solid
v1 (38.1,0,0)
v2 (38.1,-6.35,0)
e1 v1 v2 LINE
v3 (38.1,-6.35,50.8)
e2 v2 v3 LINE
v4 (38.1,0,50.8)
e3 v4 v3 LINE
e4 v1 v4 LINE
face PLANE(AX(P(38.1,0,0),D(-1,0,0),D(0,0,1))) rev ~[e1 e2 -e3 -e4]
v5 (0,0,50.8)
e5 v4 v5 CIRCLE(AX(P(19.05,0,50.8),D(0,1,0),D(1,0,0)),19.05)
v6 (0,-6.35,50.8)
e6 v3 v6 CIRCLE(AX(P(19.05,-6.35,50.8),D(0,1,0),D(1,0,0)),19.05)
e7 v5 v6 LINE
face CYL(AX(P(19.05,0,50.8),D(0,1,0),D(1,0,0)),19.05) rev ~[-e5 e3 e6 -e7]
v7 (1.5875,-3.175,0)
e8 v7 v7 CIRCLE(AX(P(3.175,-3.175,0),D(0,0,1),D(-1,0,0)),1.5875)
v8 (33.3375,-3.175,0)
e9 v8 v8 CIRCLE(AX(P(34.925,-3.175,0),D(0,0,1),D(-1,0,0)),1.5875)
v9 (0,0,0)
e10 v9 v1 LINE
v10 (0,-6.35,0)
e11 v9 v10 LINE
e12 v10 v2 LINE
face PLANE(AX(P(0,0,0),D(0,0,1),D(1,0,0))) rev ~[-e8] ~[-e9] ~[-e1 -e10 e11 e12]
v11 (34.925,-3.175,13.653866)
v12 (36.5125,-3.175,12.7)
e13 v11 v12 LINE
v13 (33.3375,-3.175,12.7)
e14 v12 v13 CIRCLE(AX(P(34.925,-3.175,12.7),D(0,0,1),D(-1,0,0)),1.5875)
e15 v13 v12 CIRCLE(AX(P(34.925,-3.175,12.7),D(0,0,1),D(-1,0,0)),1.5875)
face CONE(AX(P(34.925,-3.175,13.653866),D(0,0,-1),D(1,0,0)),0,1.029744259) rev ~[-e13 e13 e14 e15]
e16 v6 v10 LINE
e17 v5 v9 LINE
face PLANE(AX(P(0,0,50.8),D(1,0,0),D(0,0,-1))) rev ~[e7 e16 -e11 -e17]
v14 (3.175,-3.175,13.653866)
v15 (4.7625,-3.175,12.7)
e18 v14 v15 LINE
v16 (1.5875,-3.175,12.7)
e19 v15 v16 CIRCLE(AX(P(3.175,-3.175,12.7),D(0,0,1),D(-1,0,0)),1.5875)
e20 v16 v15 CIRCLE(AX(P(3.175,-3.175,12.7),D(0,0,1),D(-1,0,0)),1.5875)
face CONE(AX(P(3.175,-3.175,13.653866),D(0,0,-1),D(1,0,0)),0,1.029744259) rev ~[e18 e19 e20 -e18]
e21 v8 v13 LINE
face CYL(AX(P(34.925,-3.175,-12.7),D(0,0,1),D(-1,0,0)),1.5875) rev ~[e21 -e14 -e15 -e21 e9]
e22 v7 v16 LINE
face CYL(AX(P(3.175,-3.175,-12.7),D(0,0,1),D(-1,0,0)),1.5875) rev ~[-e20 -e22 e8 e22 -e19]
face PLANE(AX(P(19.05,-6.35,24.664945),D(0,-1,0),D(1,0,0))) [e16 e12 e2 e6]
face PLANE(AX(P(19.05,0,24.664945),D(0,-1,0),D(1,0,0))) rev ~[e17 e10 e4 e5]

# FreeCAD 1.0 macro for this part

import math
import FreeCAD as App
import Part
import Sketcher

V = App.Vector
Q = App.Units.Quantity

doc = App.newDocument("Part")
params = doc.addObject("Spreadsheet::Sheet", "Params")
for row, (alias, value) in enumerate([
    ("sketch1_height", "2 in"),
    ("sketch1_radius", "0.75 in"),
    ("pad1_length", "0.25 in"),
    ("sketch2_diameter", "0.125 in"),
    ("hole_diameter", "0.125 in"),
    ("hole_depth", "0.5 in"),
], start=1):
    params.set(f"A{row}", alias)
    params.set(f"B{row}", "=" + value)
    params.setAlias(f"B{row}", alias)

body = doc.addObject("PartDesign::Body", "Body")

# Sketch on XZ plane
sketch1 = body.newObject("Sketcher::SketchObject", "Sketch")
sketch1.AttachmentSupport = (doc.getObject("XZ_Plane"), [""])
sketch1.MapMode = "FlatFace"
sketch1.addGeometry([
    Part.LineSegment(V(0, 51, 0), V(0, 0, 0)),
    Part.LineSegment(V(0, 0, 0), V(38, 0, 0)),
    Part.LineSegment(V(38, 0, 0), V(38, 51, 0)),
    Part.ArcOfCircle(Part.Circle(V(19, 51, 0), V(0, 0, 1), 19), math.radians(180), math.radians(360)),
], False)
sketch1.addConstraint([
    Sketcher.Constraint("Coincident", 0, 2, 1, 1),
    Sketcher.Constraint("Coincident", 1, 2, 2, 1),
    Sketcher.Constraint("Tangent", 2, 2, 3, 2),
    Sketcher.Constraint("Tangent", 3, 1, 0, 1),
    Sketcher.Constraint("Vertical", 0),
    Sketcher.Constraint("Horizontal", 1),
    Sketcher.Constraint("Vertical", 2),
    Sketcher.Constraint("Coincident", 0, 2, -1, 1),
    Sketcher.Constraint("DistanceY", 0, 2, 0, 1, Q("2 in")),
    Sketcher.Constraint("Radius", 3, Q("0.75 in")),
])
sketch1.setExpression("Constraints[8]", "Params.sketch1_height")
sketch1.setExpression("Constraints[9]", "Params.sketch1_radius")
pad1 = body.newObject("PartDesign::Pad", "Pad")
pad1.Profile = sketch1
pad1.setExpression("Length", "Params.pad1_length")

# Sketch on XY plane
sketch2 = body.newObject("Sketcher::SketchObject", "Sketch001")
sketch2.AttachmentSupport = (doc.getObject("XY_Plane"), [""])
sketch2.MapMode = "FlatFace"
sketch2.addGeometry([
    Part.Circle(V(3.2, -3.2, 0), V(0, 0, 1), 1.6),
    Part.Circle(V(34.9, -3.2, 0), V(0, 0, 1), 1.6),
], False)
sketch2.addConstraint([
    Sketcher.Constraint("Equal", 0, 1),
    Sketcher.Constraint("Horizontal", 0, 3, 1, 3),
    Sketcher.Constraint("Diameter", 0, Q("0.125 in")),
    Sketcher.Constraint("DistanceX", 0, 3, 1, 3, Q("1.25 in")),
    Sketcher.Constraint("DistanceX", -1, 1, 0, 3, Q("0.125 in")),
    Sketcher.Constraint("DistanceY", 0, 3, -1, 1, Q("0.125 in")),
])
sketch2.setExpression("Constraints[2]", "Params.sketch2_diameter")
doc.recompute()
hole = body.newObject("PartDesign::Hole", "Hole")
hole.Profile = sketch2
hole.ThreadType = "None"
hole.setExpression("Diameter", "Params.hole_diameter")
hole.DepthType = "Dimension"
hole.setExpression("Depth", "Params.hole_depth")
hole.DrillPoint = "Angled"
hole.DrillPointAngle = 118
hole.Reversed = True

doc.recompute()
